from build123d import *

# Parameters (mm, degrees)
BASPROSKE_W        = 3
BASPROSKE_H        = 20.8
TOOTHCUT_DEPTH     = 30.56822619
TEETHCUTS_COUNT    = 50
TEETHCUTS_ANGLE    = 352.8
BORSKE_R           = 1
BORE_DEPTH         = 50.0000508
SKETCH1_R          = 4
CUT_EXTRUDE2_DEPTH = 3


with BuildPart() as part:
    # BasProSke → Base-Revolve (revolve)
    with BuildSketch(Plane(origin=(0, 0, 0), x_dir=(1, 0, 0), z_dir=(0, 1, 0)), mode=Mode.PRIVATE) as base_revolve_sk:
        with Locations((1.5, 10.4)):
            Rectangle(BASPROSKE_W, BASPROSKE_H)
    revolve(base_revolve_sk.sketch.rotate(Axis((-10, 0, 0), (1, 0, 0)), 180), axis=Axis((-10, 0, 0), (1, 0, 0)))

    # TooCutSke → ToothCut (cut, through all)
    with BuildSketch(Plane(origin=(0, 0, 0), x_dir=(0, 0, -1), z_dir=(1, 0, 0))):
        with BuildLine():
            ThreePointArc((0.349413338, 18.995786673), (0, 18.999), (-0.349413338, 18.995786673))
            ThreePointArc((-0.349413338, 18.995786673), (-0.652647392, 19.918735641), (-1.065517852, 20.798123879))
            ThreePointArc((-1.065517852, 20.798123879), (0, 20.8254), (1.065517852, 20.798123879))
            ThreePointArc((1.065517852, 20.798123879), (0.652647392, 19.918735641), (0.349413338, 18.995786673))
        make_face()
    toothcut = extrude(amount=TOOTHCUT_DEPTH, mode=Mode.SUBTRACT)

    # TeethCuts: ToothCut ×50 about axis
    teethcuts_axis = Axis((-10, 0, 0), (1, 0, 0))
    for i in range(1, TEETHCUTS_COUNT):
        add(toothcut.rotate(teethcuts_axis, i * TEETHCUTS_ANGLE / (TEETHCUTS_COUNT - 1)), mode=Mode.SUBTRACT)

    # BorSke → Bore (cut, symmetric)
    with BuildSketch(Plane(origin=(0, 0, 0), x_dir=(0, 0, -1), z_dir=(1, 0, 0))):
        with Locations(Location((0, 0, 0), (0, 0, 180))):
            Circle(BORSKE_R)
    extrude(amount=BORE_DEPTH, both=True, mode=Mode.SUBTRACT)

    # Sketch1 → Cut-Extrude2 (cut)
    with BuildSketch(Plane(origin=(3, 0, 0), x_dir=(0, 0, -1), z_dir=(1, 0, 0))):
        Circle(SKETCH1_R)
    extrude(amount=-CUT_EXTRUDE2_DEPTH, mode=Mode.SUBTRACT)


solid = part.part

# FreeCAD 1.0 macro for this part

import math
import FreeCAD as App
import Part
import Sketcher

V = App.Vector
Q = App.Units.Quantity


def add_polygon(sketch, points):
    """Adds a closed chain of lines whose ends are joined by coincident constraints."""
    first, n = sketch.GeometryCount, len(points)
    for a, b in zip(points, points[1:] + points[:1]):
        sketch.addGeometry(Part.LineSegment(App.Vector(*a, 0), App.Vector(*b, 0)), False)
    for i in range(n):
        sketch.addConstraint(Sketcher.Constraint("Coincident", first + i, 2, first + (i + 1) % n, 1))

doc = App.newDocument("Part")
body = doc.addObject("PartDesign::Body", "Body")

sketch1 = body.newObject("Sketcher::SketchObject", "Sketch")
sketch1.AttachmentSupport = (doc.getObject("XZ_Plane"), [""])
sketch1.MapMode = "FlatFace"
add_polygon(sketch1, [(0, -20.8), (0, 0), (3, 0), (3, -20.8)])
sketch1.addConstraint(Sketcher.Constraint("Vertical", 0))
sketch1.addConstraint(Sketcher.Constraint("Horizontal", 1))
sketch1.addConstraint(Sketcher.Constraint("Vertical", 2))
sketch1.addConstraint(Sketcher.Constraint("Horizontal", 3))
sketch1.addConstraint(Sketcher.Constraint("Coincident", 0, 2, -1, 1))
sketch1.addConstraint(Sketcher.Constraint("DistanceX", 1, 1, 1, 2, Q("3 mm")))
sketch1.addConstraint(Sketcher.Constraint("DistanceY", 0, 1, 0, 2, Q("20.8 mm")))
revolution = body.newObject("PartDesign::Revolution", "Revolution")
revolution.Profile = sketch1
revolution.ReferenceAxis = (sketch1, ["H_Axis"])
revolution.Angle = 360

sketch2 = body.newObject("Sketcher::SketchObject", "Sketch001")
sketch2.AttachmentSupport = (doc.getObject("YZ_Plane"), [""])
sketch2.MapMode = "FlatFace"
sketch2.addGeometry(Part.ArcOfCircle(Part.Circle(V(-0.000001, 0, 0), V(0, 0, 1), 18.999001), math.radians(-1.053794), math.radians(1.053794)), False)
sketch2.addGeometry(Part.ArcOfCircle(Part.Circle(V(16.964795, -8.087312, 0), V(0, 0, 1), 8), math.radians(61.369048), math.radians(75.293129)), False)
sketch2.addGeometry(Part.ArcOfCircle(Part.Circle(V(0, 0, 0), V(0, 0, 1), 20.8254), math.radians(-2.932781), math.radians(2.932781)), False)
sketch2.addGeometry(Part.ArcOfCircle(Part.Circle(V(16.964795, 8.087312, 0), V(0, 0, 1), 8), math.radians(-75.293129), math.radians(-61.369048)), False)
sketch2.addConstraint(Sketcher.Constraint("Coincident", 0, 1, 1, 2))
sketch2.addConstraint(Sketcher.Constraint("Coincident", 1, 1, 2, 1))
sketch2.addConstraint(Sketcher.Constraint("Coincident", 2, 2, 3, 2))
sketch2.addConstraint(Sketcher.Constraint("Coincident", 3, 1, 0, 2))
sketch2.addConstraint(Sketcher.Constraint("Coincident", 0, 3, -1, 1))
sketch2.addConstraint(Sketcher.Constraint("Coincident", 2, 3, -1, 1))
sketch2.addConstraint(Sketcher.Constraint("Equal", 1, 3))
sketch2.addConstraint(Sketcher.Constraint("Symmetric", 1, 3, 3, 3, -1))
sketch2.addConstraint(Sketcher.Constraint("Radius", 1, Q("8 mm")))
sketch2.addConstraint(Sketcher.Constraint("Radius", 0, Q("18.999001 mm")))
sketch2.addConstraint(Sketcher.Constraint("Radius", 2, Q("20.8254 mm")))
sketch2.addConstraint(Sketcher.Constraint("DistanceY", 1, 3, 0, 1, Q("7.737898 mm")))
sketch2.addConstraint(Sketcher.Constraint("DistanceY", 1, 3, -1, 1, Q("8.087312 mm")))
pocket1 = body.newObject("PartDesign::Pocket", "Pocket")
pocket1.Profile = sketch2
pocket1.Type = "ThroughAll"
pocket1.Reversed = True
doc.recompute()

polarpattern = body.newObject("PartDesign::PolarPattern", "PolarPattern")
polarpattern.Originals = [pocket1]
polarpattern.Axis = (doc.getObject("X_Axis"), [""])
polarpattern.Angle = 360
polarpattern.Occurrences = 50
body.Tip = polarpattern

sketch3 = body.newObject("Sketcher::SketchObject", "Sketch002")
sketch3.AttachmentSupport = (doc.getObject("YZ_Plane"), [""])
sketch3.MapMode = "FlatFace"
sketch3.addGeometry(Part.Circle(V(0, 0, 0), V(0, 0, 1), 1), False)
sketch3.addConstraint(Sketcher.Constraint("Coincident", 0, 3, -1, 1))
sketch3.addConstraint(Sketcher.Constraint("Diameter", 0, Q("2 mm")))
pocket2 = body.newObject("PartDesign::Pocket", "Pocket001")
pocket2.Profile = sketch3
pocket2.Length = 100.000102
pocket2.Midplane = True

sketch4 = body.newObject("Sketcher::SketchObject", "Sketch003")
sketch4.AttachmentSupport = (doc.getObject("YZ_Plane"), [""])
sketch4.MapMode = "FlatFace"
sketch4.AttachmentOffset = App.Placement(V(0, 0, 3), App.Rotation())
sketch4.addGeometry(Part.Circle(V(0, 0, 0), V(0, 0, 1), 4), False)
sketch4.addConstraint(Sketcher.Constraint("Coincident", 0, 3, -1, 1))
sketch4.addConstraint(Sketcher.Constraint("Diameter", 0, Q("8 mm")))
pocket3 = body.newObject("PartDesign::Pocket", "Pocket002")
pocket3.Profile = sketch4
pocket3.Length = 3

doc.recompute()
